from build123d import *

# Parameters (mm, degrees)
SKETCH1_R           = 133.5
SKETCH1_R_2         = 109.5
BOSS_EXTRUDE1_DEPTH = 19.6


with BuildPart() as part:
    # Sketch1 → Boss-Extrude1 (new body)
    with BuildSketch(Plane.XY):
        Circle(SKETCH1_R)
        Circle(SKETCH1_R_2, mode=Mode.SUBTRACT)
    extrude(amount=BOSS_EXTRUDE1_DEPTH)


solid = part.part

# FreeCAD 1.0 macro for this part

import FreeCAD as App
import Part
import Sketcher
Q = App.Units.Quantity

doc = App.newDocument("Part")
body = doc.addObject("PartDesign::Body", "Body")

# Sketch on XY plane
sketch1 = doc.addObject("Sketcher::SketchObject", "Sketch")
body.addObject(sketch1)
sketch1.AttachmentSupport = (doc.XY_Plane, [""])
sketch1.MapMode = "FlatFace"
sketch1.addGeometry(Part.Circle(App.Vector(0, 0, 0), App.Vector(0, 0, 1), 134), False)
sketch1.addGeometry(Part.Circle(App.Vector(0, 0, 0), App.Vector(0, 0, 1), 110), False)
sketch1.addConstraint(Sketcher.Constraint("Coincident", 0, 3, -1, 1))
sketch1.addConstraint(Sketcher.Constraint("Coincident", 1, 3, -1, 1))
sketch1.addConstraint(Sketcher.Constraint("Diameter", 0, Q("267 mm")))
sketch1.addConstraint(Sketcher.Constraint("Diameter", 1, Q("219 mm")))
pad1 = doc.addObject("PartDesign::Pad", "Pad")
body.addObject(pad1)
pad1.Profile = sketch1
pad1.Length = 19.6

doc.recompute()
